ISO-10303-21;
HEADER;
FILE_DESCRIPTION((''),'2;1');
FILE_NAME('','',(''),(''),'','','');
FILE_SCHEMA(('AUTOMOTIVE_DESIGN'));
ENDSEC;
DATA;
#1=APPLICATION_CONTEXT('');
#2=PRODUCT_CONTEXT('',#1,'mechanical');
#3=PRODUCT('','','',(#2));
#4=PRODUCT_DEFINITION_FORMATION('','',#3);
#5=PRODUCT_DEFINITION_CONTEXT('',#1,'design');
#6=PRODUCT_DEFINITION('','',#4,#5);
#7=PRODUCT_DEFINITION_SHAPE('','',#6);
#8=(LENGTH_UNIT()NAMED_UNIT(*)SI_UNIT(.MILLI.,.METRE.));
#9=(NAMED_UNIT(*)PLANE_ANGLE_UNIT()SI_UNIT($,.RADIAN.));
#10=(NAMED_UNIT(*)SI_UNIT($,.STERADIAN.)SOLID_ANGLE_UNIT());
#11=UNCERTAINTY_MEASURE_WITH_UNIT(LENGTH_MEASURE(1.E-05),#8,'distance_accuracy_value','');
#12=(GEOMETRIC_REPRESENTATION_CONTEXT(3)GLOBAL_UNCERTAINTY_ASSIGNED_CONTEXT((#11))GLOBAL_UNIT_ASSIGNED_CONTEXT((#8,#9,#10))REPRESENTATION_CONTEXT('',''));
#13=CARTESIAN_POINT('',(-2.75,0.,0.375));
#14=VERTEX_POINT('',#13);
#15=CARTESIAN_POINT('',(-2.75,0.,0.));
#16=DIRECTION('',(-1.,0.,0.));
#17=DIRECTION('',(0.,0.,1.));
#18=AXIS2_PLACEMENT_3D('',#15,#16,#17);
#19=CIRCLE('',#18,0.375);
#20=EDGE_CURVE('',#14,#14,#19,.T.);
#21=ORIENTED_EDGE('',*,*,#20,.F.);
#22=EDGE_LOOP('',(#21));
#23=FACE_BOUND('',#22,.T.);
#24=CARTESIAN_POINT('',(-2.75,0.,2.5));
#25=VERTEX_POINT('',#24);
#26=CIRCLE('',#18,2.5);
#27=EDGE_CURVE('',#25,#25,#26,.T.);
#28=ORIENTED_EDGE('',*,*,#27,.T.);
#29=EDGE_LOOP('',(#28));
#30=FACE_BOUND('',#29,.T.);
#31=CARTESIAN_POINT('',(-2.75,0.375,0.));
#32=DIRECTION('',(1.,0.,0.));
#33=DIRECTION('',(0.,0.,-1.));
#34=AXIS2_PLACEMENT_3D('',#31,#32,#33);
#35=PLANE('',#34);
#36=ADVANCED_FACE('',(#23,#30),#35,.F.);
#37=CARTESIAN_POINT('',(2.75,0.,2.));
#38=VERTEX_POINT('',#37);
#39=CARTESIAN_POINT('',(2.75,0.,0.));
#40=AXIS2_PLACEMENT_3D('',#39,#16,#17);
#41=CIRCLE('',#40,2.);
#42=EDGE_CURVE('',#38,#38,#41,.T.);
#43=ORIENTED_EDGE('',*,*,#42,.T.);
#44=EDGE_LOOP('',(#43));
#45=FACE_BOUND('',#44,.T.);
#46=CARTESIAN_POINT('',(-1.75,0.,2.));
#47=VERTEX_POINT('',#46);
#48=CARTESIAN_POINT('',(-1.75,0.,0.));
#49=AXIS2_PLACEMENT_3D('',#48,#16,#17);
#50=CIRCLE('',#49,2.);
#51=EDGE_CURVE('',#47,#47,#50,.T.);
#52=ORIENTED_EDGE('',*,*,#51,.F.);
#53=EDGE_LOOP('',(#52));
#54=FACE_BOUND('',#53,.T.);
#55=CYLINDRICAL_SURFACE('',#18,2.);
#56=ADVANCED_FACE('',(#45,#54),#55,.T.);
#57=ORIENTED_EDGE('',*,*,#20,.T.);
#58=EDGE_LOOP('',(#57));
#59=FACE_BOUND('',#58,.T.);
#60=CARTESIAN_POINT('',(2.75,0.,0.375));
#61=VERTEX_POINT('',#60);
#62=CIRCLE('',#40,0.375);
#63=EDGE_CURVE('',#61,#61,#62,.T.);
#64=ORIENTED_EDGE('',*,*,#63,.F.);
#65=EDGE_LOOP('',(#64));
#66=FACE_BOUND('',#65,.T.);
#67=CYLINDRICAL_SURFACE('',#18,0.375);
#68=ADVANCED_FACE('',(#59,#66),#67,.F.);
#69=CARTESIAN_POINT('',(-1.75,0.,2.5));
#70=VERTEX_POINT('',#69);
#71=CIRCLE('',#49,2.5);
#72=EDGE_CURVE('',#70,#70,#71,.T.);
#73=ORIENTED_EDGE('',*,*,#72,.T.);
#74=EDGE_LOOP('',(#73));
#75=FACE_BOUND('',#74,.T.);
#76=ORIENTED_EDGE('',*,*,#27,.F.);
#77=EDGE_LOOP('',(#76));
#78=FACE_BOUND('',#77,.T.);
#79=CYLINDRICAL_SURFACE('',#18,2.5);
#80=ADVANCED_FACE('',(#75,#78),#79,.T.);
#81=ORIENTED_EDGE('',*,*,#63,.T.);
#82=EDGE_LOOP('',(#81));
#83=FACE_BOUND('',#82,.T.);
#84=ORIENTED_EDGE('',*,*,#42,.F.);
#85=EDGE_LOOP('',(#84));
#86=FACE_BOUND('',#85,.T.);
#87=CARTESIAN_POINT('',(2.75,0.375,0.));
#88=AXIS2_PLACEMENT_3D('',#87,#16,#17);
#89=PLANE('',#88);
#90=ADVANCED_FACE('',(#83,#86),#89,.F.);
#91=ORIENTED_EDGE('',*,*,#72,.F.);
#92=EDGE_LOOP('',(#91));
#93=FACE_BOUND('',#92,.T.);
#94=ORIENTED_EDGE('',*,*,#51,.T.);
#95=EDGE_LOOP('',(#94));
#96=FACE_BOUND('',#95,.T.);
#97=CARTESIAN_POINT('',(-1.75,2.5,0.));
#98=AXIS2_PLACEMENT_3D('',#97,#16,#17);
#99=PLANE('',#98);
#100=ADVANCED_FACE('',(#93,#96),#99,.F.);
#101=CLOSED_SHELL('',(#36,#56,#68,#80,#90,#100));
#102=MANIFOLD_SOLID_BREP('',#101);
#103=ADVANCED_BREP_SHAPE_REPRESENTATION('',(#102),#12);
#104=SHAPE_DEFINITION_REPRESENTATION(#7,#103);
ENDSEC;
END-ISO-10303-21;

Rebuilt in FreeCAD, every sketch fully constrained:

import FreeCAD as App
import Part
import Sketcher

V = App.Vector

doc = App.newDocument("Part")
body = doc.addObject("PartDesign::Body", "Body")

# Sketch on XY plane
sketch1 = doc.addObject("Sketcher::SketchObject", "Sketch")
body.addObject(sketch1)
sketch1.AttachmentSupport = (doc.XY_Plane, [""])
sketch1.MapMode = "FlatFace"
sketch1.addGeometry(Part.LineSegment(V(-1.75, 2.5, 0), V(-2.75, 2.5, 0)), False)
sketch1.addGeometry(Part.LineSegment(V(-2.75, 2.5, 0), V(-2.75, 0.375, 0)), False)
sketch1.addGeometry(Part.LineSegment(V(-2.75, 0.375, 0), V(2.75, 0.375, 0)), False)
sketch1.addGeometry(Part.LineSegment(V(2.75, 0.375, 0), V(2.75, 2, 0)), False)
sketch1.addGeometry(Part.LineSegment(V(2.75, 2, 0), V(-1.75, 2, 0)), False)
sketch1.addGeometry(Part.LineSegment(V(-1.75, 2, 0), V(-1.75, 2.5, 0)), False)
sketch1.addConstraint(Sketcher.Constraint("Coincident", 0, 2, 1, 1))
sketch1.addConstraint(Sketcher.Constraint("Coincident", 1, 2, 2, 1))
sketch1.addConstraint(Sketcher.Constraint("Coincident", 2, 2, 3, 1))
sketch1.addConstraint(Sketcher.Constraint("Coincident", 3, 2, 4, 1))
sketch1.addConstraint(Sketcher.Constraint("Coincident", 4, 2, 5, 1))
sketch1.addConstraint(Sketcher.Constraint("Coincident", 5, 2, 0, 1))
sketch1.addConstraint(Sketcher.Constraint("Horizontal", 0))
sketch1.addConstraint(Sketcher.Constraint("Vertical", 1))
sketch1.addConstraint(Sketcher.Constraint("Horizontal", 2))
sketch1.addConstraint(Sketcher.Constraint("Vertical", 3))
sketch1.addConstraint(Sketcher.Constraint("Horizontal", 4))
sketch1.addConstraint(Sketcher.Constraint("Vertical", 5))
sketch1.addConstraint(Sketcher.Constraint("DistanceX", 0, 2, 0, 1, 1.0))
sketch1.addConstraint(Sketcher.Constraint("DistanceX", 2, 1, 2, 2, 5.5))
sketch1.addConstraint(Sketcher.Constraint("DistanceY", 5, 1, 5, 2, 0.5))
sketch1.addConstraint(Sketcher.Constraint("DistanceY", -1, 1, 3, 2, 2.0))
sketch1.addConstraint(Sketcher.Constraint("DistanceY", 1, 2, 1, 1, 2.125))
sketch1.addConstraint(Sketcher.Constraint("DistanceX", 0, 2, -1, 1, 2.75))
revolution = doc.addObject("PartDesign::Revolution", "Revolution")
body.addObject(revolution)
revolution.Profile = sketch1
revolution.ReferenceAxis = (sketch1, ["H_Axis"])
revolution.Angle = 360

doc.recompute()
